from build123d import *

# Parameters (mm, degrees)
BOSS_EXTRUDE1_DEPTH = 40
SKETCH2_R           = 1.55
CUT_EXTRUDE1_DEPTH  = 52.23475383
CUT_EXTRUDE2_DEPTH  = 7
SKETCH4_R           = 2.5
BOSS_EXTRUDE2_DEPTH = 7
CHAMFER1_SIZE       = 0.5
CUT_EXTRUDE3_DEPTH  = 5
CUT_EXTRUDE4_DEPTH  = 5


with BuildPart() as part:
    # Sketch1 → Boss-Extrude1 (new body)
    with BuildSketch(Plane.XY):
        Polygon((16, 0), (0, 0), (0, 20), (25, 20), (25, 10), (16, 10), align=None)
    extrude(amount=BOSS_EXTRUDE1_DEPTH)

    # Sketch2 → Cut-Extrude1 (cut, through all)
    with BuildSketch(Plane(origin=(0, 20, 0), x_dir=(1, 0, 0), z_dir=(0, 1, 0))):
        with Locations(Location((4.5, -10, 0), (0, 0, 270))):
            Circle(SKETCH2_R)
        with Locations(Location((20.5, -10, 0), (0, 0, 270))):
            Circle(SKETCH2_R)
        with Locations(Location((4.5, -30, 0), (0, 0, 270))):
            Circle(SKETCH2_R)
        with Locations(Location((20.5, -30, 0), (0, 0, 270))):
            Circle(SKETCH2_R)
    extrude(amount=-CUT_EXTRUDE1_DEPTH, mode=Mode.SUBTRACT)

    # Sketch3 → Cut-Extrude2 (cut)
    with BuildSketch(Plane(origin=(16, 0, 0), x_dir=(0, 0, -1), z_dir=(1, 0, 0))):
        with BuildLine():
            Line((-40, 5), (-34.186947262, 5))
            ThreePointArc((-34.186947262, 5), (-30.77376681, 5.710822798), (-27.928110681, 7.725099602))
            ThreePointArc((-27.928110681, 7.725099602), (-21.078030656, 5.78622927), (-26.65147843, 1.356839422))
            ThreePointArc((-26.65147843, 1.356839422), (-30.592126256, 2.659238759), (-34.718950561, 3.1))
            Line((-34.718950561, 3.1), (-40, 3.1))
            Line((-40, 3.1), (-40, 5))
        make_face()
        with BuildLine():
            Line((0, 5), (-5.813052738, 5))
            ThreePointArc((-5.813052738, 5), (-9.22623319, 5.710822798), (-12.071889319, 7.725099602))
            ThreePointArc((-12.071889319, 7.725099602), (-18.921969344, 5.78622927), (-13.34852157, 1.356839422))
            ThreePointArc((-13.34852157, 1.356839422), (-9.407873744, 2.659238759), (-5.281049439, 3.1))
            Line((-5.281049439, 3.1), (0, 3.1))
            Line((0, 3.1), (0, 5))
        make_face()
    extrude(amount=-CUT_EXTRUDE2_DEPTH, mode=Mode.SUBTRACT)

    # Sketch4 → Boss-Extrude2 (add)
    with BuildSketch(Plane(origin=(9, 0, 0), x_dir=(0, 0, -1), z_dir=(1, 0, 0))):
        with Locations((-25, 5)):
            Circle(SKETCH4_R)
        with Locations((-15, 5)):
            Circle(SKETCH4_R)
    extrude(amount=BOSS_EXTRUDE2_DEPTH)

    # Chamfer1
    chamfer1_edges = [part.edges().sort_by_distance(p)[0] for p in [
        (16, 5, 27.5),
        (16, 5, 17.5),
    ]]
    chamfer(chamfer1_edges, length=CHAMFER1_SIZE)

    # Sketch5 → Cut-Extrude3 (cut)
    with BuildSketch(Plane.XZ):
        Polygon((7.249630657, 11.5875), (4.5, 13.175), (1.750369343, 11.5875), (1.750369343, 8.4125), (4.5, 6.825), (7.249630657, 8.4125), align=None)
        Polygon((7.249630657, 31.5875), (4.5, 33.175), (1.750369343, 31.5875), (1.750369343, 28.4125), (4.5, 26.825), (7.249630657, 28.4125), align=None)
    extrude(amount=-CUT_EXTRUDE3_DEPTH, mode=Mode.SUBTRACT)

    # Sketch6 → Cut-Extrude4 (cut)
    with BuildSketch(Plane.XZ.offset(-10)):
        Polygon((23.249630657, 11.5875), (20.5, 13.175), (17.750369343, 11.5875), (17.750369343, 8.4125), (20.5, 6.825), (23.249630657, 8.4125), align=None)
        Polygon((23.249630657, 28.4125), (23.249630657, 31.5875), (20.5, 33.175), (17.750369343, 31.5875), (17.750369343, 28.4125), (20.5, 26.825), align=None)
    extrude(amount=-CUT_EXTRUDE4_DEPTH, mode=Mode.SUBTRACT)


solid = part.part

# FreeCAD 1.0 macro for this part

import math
import FreeCAD as App
import Part
import Sketcher
from FreeCAD import Vector
Q = App.Units.Quantity


def edges_at(feature, points):
    """Names of the edges that pass closest to the given points."""
    edges = feature.Shape.Edges
    near = lambda p: min(range(len(edges)), key=lambda i: edges[i].distToShape(Part.Vertex(*p))[0])
    return sorted({f"Edge{near(p) + 1}" for p in points})

doc = App.newDocument("Part")
body = doc.addObject("PartDesign::Body", "Body")

sketch1 = body.newObject("Sketcher::SketchObject", "Sketch")
sketch1.AttachmentSupport = (doc.getObject("XY_Plane"), [""])
sketch1.MapMode = "FlatFace"
sketch1.addGeometry(Part.LineSegment(Vector(0, 0, 0), Vector(16, 0, 0)), False)
sketch1.addGeometry(Part.LineSegment(Vector(16, 0, 0), Vector(16, 10, 0)), False)
sketch1.addGeometry(Part.LineSegment(Vector(16, 10, 0), Vector(25, 10, 0)), False)
sketch1.addGeometry(Part.LineSegment(Vector(25, 10, 0), Vector(25, 20, 0)), False)
sketch1.addGeometry(Part.LineSegment(Vector(25, 20, 0), Vector(0, 20, 0)), False)
sketch1.addGeometry(Part.LineSegment(Vector(0, 20, 0), Vector(0, 0, 0)), False)
sketch1.addConstraint(Sketcher.Constraint("Coincident", 0, 2, 1, 1))
sketch1.addConstraint(Sketcher.Constraint("Coincident", 1, 2, 2, 1))
sketch1.addConstraint(Sketcher.Constraint("Coincident", 2, 2, 3, 1))
sketch1.addConstraint(Sketcher.Constraint("Coincident", 3, 2, 4, 1))
sketch1.addConstraint(Sketcher.Constraint("Coincident", 4, 2, 5, 1))
sketch1.addConstraint(Sketcher.Constraint("Coincident", 5, 2, 0, 1))
sketch1.addConstraint(Sketcher.Constraint("Horizontal", 0))
sketch1.addConstraint(Sketcher.Constraint("Vertical", 1))
sketch1.addConstraint(Sketcher.Constraint("Horizontal", 2))
sketch1.addConstraint(Sketcher.Constraint("Vertical", 3))
sketch1.addConstraint(Sketcher.Constraint("Horizontal", 4))
sketch1.addConstraint(Sketcher.Constraint("Vertical", 5))
sketch1.addConstraint(Sketcher.Constraint("Coincident", 5, 2, -1, 1))
sketch1.addConstraint(Sketcher.Constraint("Equal", 1, 3))
sketch1.addConstraint(Sketcher.Constraint("DistanceX", 0, 1, 0, 2, Q("16 mm")))
sketch1.addConstraint(Sketcher.Constraint("DistanceX", 2, 1, 2, 2, Q("9 mm")))
sketch1.addConstraint(Sketcher.Constraint("DistanceY", 1, 1, 1, 2, Q("10 mm")))
pad1 = body.newObject("PartDesign::Pad", "Pad")
pad1.Profile = sketch1
pad1.Length = 40

sketch2 = body.newObject("Sketcher::SketchObject", "Sketch001")
sketch2.AttachmentSupport = (doc.getObject("XZ_Plane"), [""])
sketch2.MapMode = "FlatFace"
sketch2.AttachmentOffset = App.Placement(Vector(0, 0, -20), App.Rotation())
sketch2.addGeometry(Part.Circle(Vector(4.5, 10, 0), Vector(0, 0, 1), 1.6), False)
sketch2.addGeometry(Part.Circle(Vector(20.5, 10, 0), Vector(0, 0, 1), 1.6), False)
sketch2.addGeometry(Part.Circle(Vector(4.5, 30, 0), Vector(0, 0, 1), 1.6), False)
sketch2.addGeometry(Part.Circle(Vector(20.5, 30, 0), Vector(0, 0, 1), 1.6), False)
sketch2.addConstraint(Sketcher.Constraint("Equal", 0, 1))
sketch2.addConstraint(Sketcher.Constraint("Equal", 1, 2))
sketch2.addConstraint(Sketcher.Constraint("Equal", 2, 3))
sketch2.addConstraint(Sketcher.Constraint("Horizontal", 0, 3, 1, 3))
sketch2.addConstraint(Sketcher.Constraint("Horizontal", 2, 3, 3, 3))
sketch2.addConstraint(Sketcher.Constraint("Vertical", 0, 3, 2, 3))
sketch2.addConstraint(Sketcher.Constraint("Vertical", 1, 3, 3, 3))
sketch2.addConstraint(Sketcher.Constraint("Diameter", 0, Q("3.1 mm")))
sketch2.addConstraint(Sketcher.Constraint("DistanceY", -1, 1, 0, 3, Q("10 mm")))
sketch2.addConstraint(Sketcher.Constraint("DistanceY", -1, 1, 2, 3, Q("30 mm")))
sketch2.addConstraint(Sketcher.Constraint("DistanceX", 0, 3, 1, 3, Q("16 mm")))
sketch2.addConstraint(Sketcher.Constraint("DistanceX", -1, 1, 0, 3, Q("4.5 mm")))
pocket1 = body.newObject("PartDesign::Pocket", "Pocket")
pocket1.Profile = sketch2
pocket1.Type = "ThroughAll"
pocket1.Reversed = True

sketch3 = body.newObject("Sketcher::SketchObject", "Sketch002")
sketch3.AttachmentSupport = (doc.getObject("YZ_Plane"), [""])
sketch3.MapMode = "FlatFace"
sketch3.AttachmentOffset = App.Placement(Vector(0, 0, 16), App.Rotation())
sketch3.addGeometry(Part.LineSegment(Vector(5, 34.2, 0), Vector(5, 40, 0)), False)
sketch3.addGeometry(Part.LineSegment(Vector(5, 40, 0), Vector(3.1, 40, 0)), False)
sketch3.addGeometry(Part.LineSegment(Vector(3.1, 40, 0), Vector(3.1, 34.7, 0)), False)
sketch3.addGeometry(Part.ArcOfCircle(Part.Circle(Vector(-16.4, 34.7, 0), Vector(0, 0, 1), 19.5), math.radians(-24), math.radians(0)), False)
sketch3.addGeometry(Part.ArcOfCircle(Part.Circle(Vector(5, 25, 0), Vector(0, 0, 1), 4), math.radians(156), math.radians(407)), False)
sketch3.addGeometry(Part.ArcOfCircle(Part.Circle(Vector(13.5, 34.2, 0), Vector(0, 0, 1), 8.5), math.radians(180), math.radians(227)), False)
sketch3.addGeometry(Part.LineSegment(Vector(5, 0, 0), Vector(5, 5.8, 0)), False)
sketch3.addGeometry(Part.ArcOfCircle(Part.Circle(Vector(13.5, 5.8, 0), Vector(0, 0, 1), 8.5), math.radians(133), math.radians(180)), False)
sketch3.addGeometry(Part.ArcOfCircle(Part.Circle(Vector(5, 15, 0), Vector(0, 0, 1), 4), math.radians(-47), math.radians(204)), False)
sketch3.addGeometry(Part.ArcOfCircle(Part.Circle(Vector(-16.4, 5.3, 0), Vector(0, 0, 1), 19.5), math.radians(0), math.radians(24)), False)
sketch3.addGeometry(Part.LineSegment(Vector(3.1, 5.3, 0), Vector(3.1, 0, 0)), False)
sketch3.addGeometry(Part.LineSegment(Vector(3.1, 0, 0), Vector(5, 0, 0)), False)
sketch3.addConstraint(Sketcher.Constraint("Coincident", 0, 2, 1, 1))
sketch3.addConstraint(Sketcher.Constraint("Coincident", 1, 2, 2, 1))
sketch3.addConstraint(Sketcher.Constraint("Tangent", 2, 2, 3, 2))
sketch3.addConstraint(Sketcher.Constraint("Tangent", 3, 1, 4, 1))
sketch3.addConstraint(Sketcher.Constraint("Tangent", 4, 2, 5, 2))
sketch3.addConstraint(Sketcher.Constraint("Tangent", 5, 1, 0, 1))
sketch3.addConstraint(Sketcher.Constraint("Tangent", 6, 2, 7, 2))
sketch3.addConstraint(Sketcher.Constraint("Tangent", 7, 1, 8, 1))
sketch3.addConstraint(Sketcher.Constraint("Tangent", 8, 2, 9, 2))
sketch3.addConstraint(Sketcher.Constraint("Tangent", 9, 1, 10, 1))
sketch3.addConstraint(Sketcher.Constraint("Coincident", 10, 2, 11, 1))
sketch3.addConstraint(Sketcher.Constraint("Coincident", 11, 2, 6, 1))
sketch3.addConstraint(Sketcher.Constraint("Vertical", 0))
sketch3.addConstraint(Sketcher.Constraint("Horizontal", 1))
sketch3.addConstraint(Sketcher.Constraint("Vertical", 2))
sketch3.addConstraint(Sketcher.Constraint("Vertical", 6))
sketch3.addConstraint(Sketcher.Constraint("Vertical", 10))
sketch3.addConstraint(Sketcher.Constraint("Horizontal", 11))
sketch3.addConstraint(Sketcher.Constraint("Equal", 5, 7))
sketch3.addConstraint(Sketcher.Constraint("Equal", 4, 8))
sketch3.addConstraint(Sketcher.Constraint("Equal", 3, 9))
sketch3.addConstraint(Sketcher.Constraint("PointOnObject", 10, 2, -1))
sketch3.addConstraint(Sketcher.Constraint("Vertical", 5, 3, 7, 3))
sketch3.addConstraint(Sketcher.Constraint("Vertical", 4, 3, 8, 3))
sketch3.addConstraint(Sketcher.Constraint("Vertical", 3, 3, 9, 3))
sketch3.addConstraint(Sketcher.Constraint("Vertical", 8, 3, 0, 2))
sketch3.addConstraint(Sketcher.Constraint("Equal", 0, 6))
sketch3.addConstraint(Sketcher.Constraint("Radius", 4, Q("4 mm")))
sketch3.addConstraint(Sketcher.Constraint("Radius", 3, Q("19.54 mm")))
sketch3.addConstraint(Sketcher.Constraint("Radius", 5, Q("8.55 mm")))
sketch3.addConstraint(Sketcher.Constraint("DistanceX", 1, 2, 1, 1, Q("1.9 mm")))
sketch3.addConstraint(Sketcher.Constraint("DistanceX", -1, 1, 4, 3, Q("5 mm")))
sketch3.addConstraint(Sketcher.Constraint("DistanceY", -1, 1, 4, 3, Q("25 mm")))
sketch3.addConstraint(Sketcher.Constraint("DistanceY", -1, 1, 8, 3, Q("15 mm")))
pocket2 = body.newObject("PartDesign::Pocket", "Pocket001")
pocket2.Profile = sketch3
pocket2.Length = 7

sketch4 = body.newObject("Sketcher::SketchObject", "Sketch003")
sketch4.AttachmentSupport = (doc.getObject("YZ_Plane"), [""])
sketch4.MapMode = "FlatFace"
sketch4.AttachmentOffset = App.Placement(Vector(0, 0, 9), App.Rotation())
sketch4.addGeometry(Part.Circle(Vector(5, 25, 0), Vector(0, 0, 1), 2.5), False)
sketch4.addGeometry(Part.Circle(Vector(5, 15, 0), Vector(0, 0, 1), 2.5), False)
sketch4.addConstraint(Sketcher.Constraint("Equal", 0, 1))
sketch4.addConstraint(Sketcher.Constraint("Vertical", 0, 3, 1, 3))
sketch4.addConstraint(Sketcher.Constraint("Diameter", 0, Q("5 mm")))
sketch4.addConstraint(Sketcher.Constraint("DistanceX", -1, 1, 0, 3, Q("5 mm")))
sketch4.addConstraint(Sketcher.Constraint("DistanceY", -1, 1, 0, 3, Q("25 mm")))
sketch4.addConstraint(Sketcher.Constraint("DistanceY", -1, 1, 1, 3, Q("15 mm")))
pad2 = body.newObject("PartDesign::Pad", "Pad001")
pad2.Profile = sketch4
pad2.Length = 7
doc.recompute()

chamfer = body.newObject("PartDesign::Chamfer", "Chamfer")
chamfer.Base = (pad2, edges_at(pad2, [(16, 5, 27.5), (16, 5, 17.5)]))
chamfer.Size = 0.5

sketch5 = body.newObject("Sketcher::SketchObject", "Sketch004")
sketch5.AttachmentSupport = (doc.getObject("XZ_Plane"), [""])
sketch5.MapMode = "FlatFace"
sketch5.addGeometry(Part.LineSegment(Vector(7.2, 11.6, 0), Vector(4.5, 13.2, 0)), False)
sketch5.addGeometry(Part.LineSegment(Vector(4.5, 13.2, 0), Vector(1.8, 11.6, 0)), False)
sketch5.addGeometry(Part.LineSegment(Vector(1.8, 11.6, 0), Vector(1.8, 8.4, 0)), False)
sketch5.addGeometry(Part.LineSegment(Vector(1.8, 8.4, 0), Vector(4.5, 6.8, 0)), False)
sketch5.addGeometry(Part.LineSegment(Vector(4.5, 6.8, 0), Vector(7.2, 8.4, 0)), False)
sketch5.addGeometry(Part.LineSegment(Vector(7.2, 8.4, 0), Vector(7.2, 11.6, 0)), False)
sketch5.addGeometry(Part.LineSegment(Vector(7.2, 31.6, 0), Vector(4.5, 33.2, 0)), False)
sketch5.addGeometry(Part.LineSegment(Vector(4.5, 33.2, 0), Vector(1.8, 31.6, 0)), False)
sketch5.addGeometry(Part.LineSegment(Vector(1.8, 31.6, 0), Vector(1.8, 28.4, 0)), False)
sketch5.addGeometry(Part.LineSegment(Vector(1.8, 28.4, 0), Vector(4.5, 26.8, 0)), False)
sketch5.addGeometry(Part.LineSegment(Vector(4.5, 26.8, 0), Vector(7.2, 28.4, 0)), False)
sketch5.addGeometry(Part.LineSegment(Vector(7.2, 28.4, 0), Vector(7.2, 31.6, 0)), False)
sketch5.addConstraint(Sketcher.Constraint("Coincident", 0, 2, 1, 1))
sketch5.addConstraint(Sketcher.Constraint("Coincident", 1, 2, 2, 1))
sketch5.addConstraint(Sketcher.Constraint("Coincident", 2, 2, 3, 1))
sketch5.addConstraint(Sketcher.Constraint("Coincident", 3, 2, 4, 1))
sketch5.addConstraint(Sketcher.Constraint("Coincident", 4, 2, 5, 1))
sketch5.addConstraint(Sketcher.Constraint("Coincident", 5, 2, 0, 1))
sketch5.addConstraint(Sketcher.Constraint("Coincident", 6, 2, 7, 1))
sketch5.addConstraint(Sketcher.Constraint("Coincident", 7, 2, 8, 1))
sketch5.addConstraint(Sketcher.Constraint("Coincident", 8, 2, 9, 1))
sketch5.addConstraint(Sketcher.Constraint("Coincident", 9, 2, 10, 1))
sketch5.addConstraint(Sketcher.Constraint("Coincident", 10, 2, 11, 1))
sketch5.addConstraint(Sketcher.Constraint("Coincident", 11, 2, 6, 1))
sketch5.addConstraint(Sketcher.Constraint("Vertical", 2))
sketch5.addConstraint(Sketcher.Constraint("Vertical", 5))
sketch5.addConstraint(Sketcher.Constraint("Vertical", 8))
sketch5.addConstraint(Sketcher.Constraint("Vertical", 11))
sketch5.addConstraint(Sketcher.Constraint("Parallel", 0, 3))
sketch5.addConstraint(Sketcher.Constraint("Parallel", 1, 4))
sketch5.addConstraint(Sketcher.Constraint("Parallel", 3, 6))
sketch5.addConstraint(Sketcher.Constraint("Parallel", 4, 7))
sketch5.addConstraint(Sketcher.Constraint("Parallel", 6, 9))
sketch5.addConstraint(Sketcher.Constraint("Parallel", 7, 10))
sketch5.addConstraint(Sketcher.Constraint("Horizontal", 2, 2, 4, 2))
sketch5.addConstraint(Sketcher.Constraint("Horizontal", 1, 2, 5, 2))
sketch5.addConstraint(Sketcher.Constraint("Horizontal", 8, 2, 10, 2))
sketch5.addConstraint(Sketcher.Constraint("Horizontal", 7, 2, 11, 2))
sketch5.addConstraint(Sketcher.Constraint("Vertical", 0, 2, 3, 2))
sketch5.addConstraint(Sketcher.Constraint("Vertical", 3, 2, 6, 2))
sketch5.addConstraint(Sketcher.Constraint("Vertical", 2, 2, 7, 2))
sketch5.addConstraint(Sketcher.Constraint("Equal", 5, 8))
sketch5.addConstraint(Sketcher.Constraint("Angle", 0, Q("150 deg")))
sketch5.addConstraint(Sketcher.Constraint("DistanceY", 0, 2, 6, 2, Q("20 mm")))
sketch5.addConstraint(Sketcher.Constraint("DistanceX", -1, 1, 0, 2, Q("4.5 mm")))
sketch5.addConstraint(Sketcher.Constraint("DistanceY", 2, 2, 2, 1, Q("3.175 mm")))
sketch5.addConstraint(Sketcher.Constraint("DistanceY", 3, 2, 0, 2, Q("6.35 mm")))
sketch5.addConstraint(Sketcher.Constraint("DistanceY", -1, 1, 0, 2, Q("13.175 mm")))
pocket3 = body.newObject("PartDesign::Pocket", "Pocket002")
pocket3.Profile = sketch5
pocket3.Length = 5

sketch6 = body.newObject("Sketcher::SketchObject", "Sketch005")
sketch6.AttachmentSupport = (doc.getObject("XZ_Plane"), [""])
sketch6.MapMode = "FlatFace"
sketch6.AttachmentOffset = App.Placement(Vector(0, 0, -10), App.Rotation())
sketch6.addGeometry(Part.LineSegment(Vector(23.2, 11.6, 0), Vector(20.5, 13.2, 0)), False)
sketch6.addGeometry(Part.LineSegment(Vector(20.5, 13.2, 0), Vector(17.8, 11.6, 0)), False)
sketch6.addGeometry(Part.LineSegment(Vector(17.8, 11.6, 0), Vector(17.8, 8.4, 0)), False)
sketch6.addGeometry(Part.LineSegment(Vector(17.8, 8.4, 0), Vector(20.5, 6.8, 0)), False)
sketch6.addGeometry(Part.LineSegment(Vector(20.5, 6.8, 0), Vector(23.2, 8.4, 0)), False)
sketch6.addGeometry(Part.LineSegment(Vector(23.2, 8.4, 0), Vector(23.2, 11.6, 0)), False)
sketch6.addGeometry(Part.LineSegment(Vector(23.2, 28.4, 0), Vector(23.2, 31.6, 0)), False)
sketch6.addGeometry(Part.LineSegment(Vector(23.2, 31.6, 0), Vector(20.5, 33.2, 0)), False)
sketch6.addGeometry(Part.LineSegment(Vector(20.5, 33.2, 0), Vector(17.8, 31.6, 0)), False)
sketch6.addGeometry(Part.LineSegment(Vector(17.8, 31.6, 0), Vector(17.8, 28.4, 0)), False)
sketch6.addGeometry(Part.LineSegment(Vector(17.8, 28.4, 0), Vector(20.5, 26.8, 0)), False)
sketch6.addGeometry(Part.LineSegment(Vector(20.5, 26.8, 0), Vector(23.2, 28.4, 0)), False)
sketch6.addConstraint(Sketcher.Constraint("Coincident", 0, 2, 1, 1))
sketch6.addConstraint(Sketcher.Constraint("Coincident", 1, 2, 2, 1))
sketch6.addConstraint(Sketcher.Constraint("Coincident", 2, 2, 3, 1))
sketch6.addConstraint(Sketcher.Constraint("Coincident", 3, 2, 4, 1))
sketch6.addConstraint(Sketcher.Constraint("Coincident", 4, 2, 5, 1))
sketch6.addConstraint(Sketcher.Constraint("Coincident", 5, 2, 0, 1))
sketch6.addConstraint(Sketcher.Constraint("Coincident", 6, 2, 7, 1))
sketch6.addConstraint(Sketcher.Constraint("Coincident", 7, 2, 8, 1))
sketch6.addConstraint(Sketcher.Constraint("Coincident", 8, 2, 9, 1))
sketch6.addConstraint(Sketcher.Constraint("Coincident", 9, 2, 10, 1))
sketch6.addConstraint(Sketcher.Constraint("Coincident", 10, 2, 11, 1))
sketch6.addConstraint(Sketcher.Constraint("Coincident", 11, 2, 6, 1))
sketch6.addConstraint(Sketcher.Constraint("Vertical", 2))
sketch6.addConstraint(Sketcher.Constraint("Vertical", 5))
sketch6.addConstraint(Sketcher.Constraint("Vertical", 6))
sketch6.addConstraint(Sketcher.Constraint("Vertical", 9))
sketch6.addConstraint(Sketcher.Constraint("Parallel", 0, 3))
sketch6.addConstraint(Sketcher.Constraint("Parallel", 1, 4))
sketch6.addConstraint(Sketcher.Constraint("Parallel", 3, 7))
sketch6.addConstraint(Sketcher.Constraint("Parallel", 4, 8))
sketch6.addConstraint(Sketcher.Constraint("Parallel", 7, 10))
sketch6.addConstraint(Sketcher.Constraint("Parallel", 8, 11))
sketch6.addConstraint(Sketcher.Constraint("Horizontal", 2, 2, 4, 2))
sketch6.addConstraint(Sketcher.Constraint("Horizontal", 1, 2, 5, 2))
sketch6.addConstraint(Sketcher.Constraint("Horizontal", 6, 2, 8, 2))
sketch6.addConstraint(Sketcher.Constraint("Horizontal", 9, 2, 11, 2))
sketch6.addConstraint(Sketcher.Constraint("Vertical", 0, 2, 3, 2))
sketch6.addConstraint(Sketcher.Constraint("Vertical", 5, 2, 6, 2))
sketch6.addConstraint(Sketcher.Constraint("Vertical", 3, 2, 7, 2))
sketch6.addConstraint(Sketcher.Constraint("Equal", 5, 6))
sketch6.addConstraint(Sketcher.Constraint("Angle", 0, Q("150 deg")))
sketch6.addConstraint(Sketcher.Constraint("DistanceY", 5, 2, 6, 2, Q("20 mm")))
sketch6.addConstraint(Sketcher.Constraint("DistanceX", -1, 1, 0, 2, Q("20.5 mm")))
sketch6.addConstraint(Sketcher.Constraint("DistanceY", 2, 2, 2, 1, Q("3.175 mm")))
sketch6.addConstraint(Sketcher.Constraint("DistanceY", 3, 2, 0, 2, Q("6.35 mm")))
sketch6.addConstraint(Sketcher.Constraint("DistanceY", -1, 1, 0, 2, Q("13.175 mm")))
pocket4 = body.newObject("PartDesign::Pocket", "Pocket003")
pocket4.Profile = sketch6
pocket4.Length = 5

doc.recompute()
